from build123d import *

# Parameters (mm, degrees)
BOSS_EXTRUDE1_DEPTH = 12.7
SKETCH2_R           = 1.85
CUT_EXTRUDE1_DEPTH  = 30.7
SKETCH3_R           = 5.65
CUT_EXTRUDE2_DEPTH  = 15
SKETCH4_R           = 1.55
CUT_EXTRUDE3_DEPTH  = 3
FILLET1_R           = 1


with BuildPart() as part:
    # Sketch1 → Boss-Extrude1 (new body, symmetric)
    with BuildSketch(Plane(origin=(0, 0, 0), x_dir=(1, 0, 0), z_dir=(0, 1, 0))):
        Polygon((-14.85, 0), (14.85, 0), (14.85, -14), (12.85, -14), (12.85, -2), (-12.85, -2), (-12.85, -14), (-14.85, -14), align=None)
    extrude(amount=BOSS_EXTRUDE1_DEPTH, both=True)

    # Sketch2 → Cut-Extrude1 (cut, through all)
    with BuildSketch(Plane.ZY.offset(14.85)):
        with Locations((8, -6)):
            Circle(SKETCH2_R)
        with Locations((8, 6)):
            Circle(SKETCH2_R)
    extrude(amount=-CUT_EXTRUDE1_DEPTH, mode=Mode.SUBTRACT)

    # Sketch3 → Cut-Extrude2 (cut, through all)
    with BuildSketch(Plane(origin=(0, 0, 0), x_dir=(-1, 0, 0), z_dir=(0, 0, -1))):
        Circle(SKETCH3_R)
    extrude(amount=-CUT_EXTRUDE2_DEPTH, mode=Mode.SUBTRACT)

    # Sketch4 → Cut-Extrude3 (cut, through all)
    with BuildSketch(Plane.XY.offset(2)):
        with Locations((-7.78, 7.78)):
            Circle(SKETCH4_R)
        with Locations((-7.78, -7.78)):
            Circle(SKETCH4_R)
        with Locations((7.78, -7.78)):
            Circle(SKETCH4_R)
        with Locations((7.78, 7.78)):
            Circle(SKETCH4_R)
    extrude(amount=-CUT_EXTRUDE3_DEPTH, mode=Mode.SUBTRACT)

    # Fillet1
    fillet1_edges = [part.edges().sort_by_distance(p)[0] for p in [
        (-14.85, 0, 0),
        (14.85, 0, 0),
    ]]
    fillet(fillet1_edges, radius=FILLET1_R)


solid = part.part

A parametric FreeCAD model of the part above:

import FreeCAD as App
import Part
import Sketcher

V = App.Vector


def edges_at(feature, points):
    """Names of the edges that pass closest to the given points."""
    edges = feature.Shape.Edges
    near = lambda p: min(range(len(edges)), key=lambda i: edges[i].distToShape(Part.Vertex(*p))[0])
    return sorted({f"Edge{near(p) + 1}" for p in points})

doc = App.newDocument("Part")
body = doc.addObject("PartDesign::Body", "Body")

sketch1 = body.newObject("Sketcher::SketchObject", "Sketch")
sketch1.AttachmentSupport = (doc.getObject("XZ_Plane"), [""])
sketch1.MapMode = "FlatFace"
sketch1.addGeometry(Part.LineSegment(V(14.85, 0, 0), V(-14.85, 0, 0)), False)
sketch1.addGeometry(Part.LineSegment(V(-14.85, 0, 0), V(-14.85, 14, 0)), False)
sketch1.addGeometry(Part.LineSegment(V(-14.85, 14, 0), V(-12.85, 14, 0)), False)
sketch1.addGeometry(Part.LineSegment(V(-12.85, 14, 0), V(-12.85, 2, 0)), False)
sketch1.addGeometry(Part.LineSegment(V(-12.85, 2, 0), V(12.85, 2, 0)), False)
sketch1.addGeometry(Part.LineSegment(V(12.85, 2, 0), V(12.85, 14, 0)), False)
sketch1.addGeometry(Part.LineSegment(V(12.85, 14, 0), V(14.85, 14, 0)), False)
sketch1.addGeometry(Part.LineSegment(V(14.85, 14, 0), V(14.85, 0, 0)), False)
sketch1.addConstraint(Sketcher.Constraint("Coincident", 0, 2, 1, 1))
sketch1.addConstraint(Sketcher.Constraint("Coincident", 1, 2, 2, 1))
sketch1.addConstraint(Sketcher.Constraint("Coincident", 2, 2, 3, 1))
sketch1.addConstraint(Sketcher.Constraint("Coincident", 3, 2, 4, 1))
sketch1.addConstraint(Sketcher.Constraint("Coincident", 4, 2, 5, 1))
sketch1.addConstraint(Sketcher.Constraint("Coincident", 5, 2, 6, 1))
sketch1.addConstraint(Sketcher.Constraint("Coincident", 6, 2, 7, 1))
sketch1.addConstraint(Sketcher.Constraint("Coincident", 7, 2, 0, 1))
sketch1.addConstraint(Sketcher.Constraint("Horizontal", 0))
sketch1.addConstraint(Sketcher.Constraint("Vertical", 1))
sketch1.addConstraint(Sketcher.Constraint("Horizontal", 2))
sketch1.addConstraint(Sketcher.Constraint("Vertical", 3))
sketch1.addConstraint(Sketcher.Constraint("Horizontal", 4))
sketch1.addConstraint(Sketcher.Constraint("Vertical", 5))
sketch1.addConstraint(Sketcher.Constraint("Horizontal", 6))
sketch1.addConstraint(Sketcher.Constraint("Vertical", 7))
sketch1.addConstraint(Sketcher.Constraint("Symmetric", 0, 2, 7, 2, -1, 1))
sketch1.addConstraint(Sketcher.Constraint("Symmetric", 2, 2, 5, 2, -2))
sketch1.addConstraint(Sketcher.Constraint("DistanceX", 2, 1, 2, 2, 2.0))
sketch1.addConstraint(Sketcher.Constraint("DistanceY", 1, 1, 1, 2, 14.0))
sketch1.addConstraint(Sketcher.Constraint("DistanceY", 3, 2, 3, 1, 12.0))
sketch1.addConstraint(Sketcher.Constraint("DistanceX", 0, 2, 0, 1, 29.7))
pad1 = body.newObject("PartDesign::Pad", "Pad")
pad1.Profile = sketch1
pad1.Length = 25.4
pad1.Midplane = True

sketch2 = body.newObject("Sketcher::SketchObject", "Sketch001")
sketch2.AttachmentSupport = (doc.getObject("YZ_Plane"), [""])
sketch2.MapMode = "FlatFace"
sketch2.AttachmentOffset = App.Placement(V(0, 0, -14.85), App.Rotation())
sketch2.addGeometry(Part.Circle(V(-6, 8, 0), V(0, 0, 1), 1.85), False)
sketch2.addGeometry(Part.Circle(V(6, 8, 0), V(0, 0, 1), 1.85), False)
sketch2.addConstraint(Sketcher.Constraint("Equal", 0, 1))
sketch2.addConstraint(Sketcher.Constraint("Symmetric", 0, 3, 1, 3, -2))
sketch2.addConstraint(Sketcher.Constraint("Diameter", 0, 3.7))
sketch2.addConstraint(Sketcher.Constraint("DistanceX", 0, 3, -1, 1, 6.0))
sketch2.addConstraint(Sketcher.Constraint("DistanceY", -1, 1, 0, 3, 8.0))
pocket1 = body.newObject("PartDesign::Pocket", "Pocket")
pocket1.Profile = sketch2
pocket1.Type = "ThroughAll"
pocket1.Reversed = True

sketch3 = body.newObject("Sketcher::SketchObject", "Sketch002")
sketch3.AttachmentSupport = (doc.getObject("XY_Plane"), [""])
sketch3.MapMode = "FlatFace"
sketch3.addGeometry(Part.Circle(V(0, 0, 0), V(0, 0, 1), 5.65), False)
sketch3.addConstraint(Sketcher.Constraint("Coincident", 0, 3, -1, 1))
sketch3.addConstraint(Sketcher.Constraint("Diameter", 0, 11.3))
pocket2 = body.newObject("PartDesign::Pocket", "Pocket001")
pocket2.Profile = sketch3
pocket2.Type = "ThroughAll"
pocket2.Reversed = True

sketch4 = body.newObject("Sketcher::SketchObject", "Sketch003")
sketch4.AttachmentSupport = (doc.getObject("XY_Plane"), [""])
sketch4.MapMode = "FlatFace"
sketch4.AttachmentOffset = App.Placement(V(0, 0, 2), App.Rotation())
sketch4.addGeometry(Part.Circle(V(-7.78, 7.78, 0), V(0, 0, 1), 1.55), False)
sketch4.addGeometry(Part.Circle(V(-7.78, -7.78, 0), V(0, 0, 1), 1.55), False)
sketch4.addGeometry(Part.Circle(V(7.78, -7.78, 0), V(0, 0, 1), 1.55), False)
sketch4.addGeometry(Part.Circle(V(7.78, 7.78, 0), V(0, 0, 1), 1.55), False)
sketch4.addConstraint(Sketcher.Constraint("Equal", 0, 1))
sketch4.addConstraint(Sketcher.Constraint("Equal", 1, 2))
sketch4.addConstraint(Sketcher.Constraint("Equal", 2, 3))
sketch4.addConstraint(Sketcher.Constraint("Symmetric", 0, 3, 2, 3, -1, 1))
sketch4.addConstraint(Sketcher.Constraint("Symmetric", 1, 3, 3, 3, -1, 1))
sketch4.addConstraint(Sketcher.Constraint("Symmetric", 1, 3, 2, 3, -2))
sketch4.addConstraint(Sketcher.Constraint("Diameter", 0, 3.1))
sketch4.addConstraint(Sketcher.Constraint("DistanceX", 0, 3, -1, 1, 7.78))
sketch4.addConstraint(Sketcher.Constraint("DistanceY", -1, 1, 0, 3, 7.78))
pocket3 = body.newObject("PartDesign::Pocket", "Pocket002")
pocket3.Profile = sketch4
pocket3.Type = "ThroughAll"
doc.recompute()

fillet = body.newObject("PartDesign::Fillet", "Fillet")
fillet.Base = (pocket3, edges_at(pocket3, [(-14.85, 0, 0), (14.85, 0, 0)]))
fillet.Radius = 1

doc.recompute()
